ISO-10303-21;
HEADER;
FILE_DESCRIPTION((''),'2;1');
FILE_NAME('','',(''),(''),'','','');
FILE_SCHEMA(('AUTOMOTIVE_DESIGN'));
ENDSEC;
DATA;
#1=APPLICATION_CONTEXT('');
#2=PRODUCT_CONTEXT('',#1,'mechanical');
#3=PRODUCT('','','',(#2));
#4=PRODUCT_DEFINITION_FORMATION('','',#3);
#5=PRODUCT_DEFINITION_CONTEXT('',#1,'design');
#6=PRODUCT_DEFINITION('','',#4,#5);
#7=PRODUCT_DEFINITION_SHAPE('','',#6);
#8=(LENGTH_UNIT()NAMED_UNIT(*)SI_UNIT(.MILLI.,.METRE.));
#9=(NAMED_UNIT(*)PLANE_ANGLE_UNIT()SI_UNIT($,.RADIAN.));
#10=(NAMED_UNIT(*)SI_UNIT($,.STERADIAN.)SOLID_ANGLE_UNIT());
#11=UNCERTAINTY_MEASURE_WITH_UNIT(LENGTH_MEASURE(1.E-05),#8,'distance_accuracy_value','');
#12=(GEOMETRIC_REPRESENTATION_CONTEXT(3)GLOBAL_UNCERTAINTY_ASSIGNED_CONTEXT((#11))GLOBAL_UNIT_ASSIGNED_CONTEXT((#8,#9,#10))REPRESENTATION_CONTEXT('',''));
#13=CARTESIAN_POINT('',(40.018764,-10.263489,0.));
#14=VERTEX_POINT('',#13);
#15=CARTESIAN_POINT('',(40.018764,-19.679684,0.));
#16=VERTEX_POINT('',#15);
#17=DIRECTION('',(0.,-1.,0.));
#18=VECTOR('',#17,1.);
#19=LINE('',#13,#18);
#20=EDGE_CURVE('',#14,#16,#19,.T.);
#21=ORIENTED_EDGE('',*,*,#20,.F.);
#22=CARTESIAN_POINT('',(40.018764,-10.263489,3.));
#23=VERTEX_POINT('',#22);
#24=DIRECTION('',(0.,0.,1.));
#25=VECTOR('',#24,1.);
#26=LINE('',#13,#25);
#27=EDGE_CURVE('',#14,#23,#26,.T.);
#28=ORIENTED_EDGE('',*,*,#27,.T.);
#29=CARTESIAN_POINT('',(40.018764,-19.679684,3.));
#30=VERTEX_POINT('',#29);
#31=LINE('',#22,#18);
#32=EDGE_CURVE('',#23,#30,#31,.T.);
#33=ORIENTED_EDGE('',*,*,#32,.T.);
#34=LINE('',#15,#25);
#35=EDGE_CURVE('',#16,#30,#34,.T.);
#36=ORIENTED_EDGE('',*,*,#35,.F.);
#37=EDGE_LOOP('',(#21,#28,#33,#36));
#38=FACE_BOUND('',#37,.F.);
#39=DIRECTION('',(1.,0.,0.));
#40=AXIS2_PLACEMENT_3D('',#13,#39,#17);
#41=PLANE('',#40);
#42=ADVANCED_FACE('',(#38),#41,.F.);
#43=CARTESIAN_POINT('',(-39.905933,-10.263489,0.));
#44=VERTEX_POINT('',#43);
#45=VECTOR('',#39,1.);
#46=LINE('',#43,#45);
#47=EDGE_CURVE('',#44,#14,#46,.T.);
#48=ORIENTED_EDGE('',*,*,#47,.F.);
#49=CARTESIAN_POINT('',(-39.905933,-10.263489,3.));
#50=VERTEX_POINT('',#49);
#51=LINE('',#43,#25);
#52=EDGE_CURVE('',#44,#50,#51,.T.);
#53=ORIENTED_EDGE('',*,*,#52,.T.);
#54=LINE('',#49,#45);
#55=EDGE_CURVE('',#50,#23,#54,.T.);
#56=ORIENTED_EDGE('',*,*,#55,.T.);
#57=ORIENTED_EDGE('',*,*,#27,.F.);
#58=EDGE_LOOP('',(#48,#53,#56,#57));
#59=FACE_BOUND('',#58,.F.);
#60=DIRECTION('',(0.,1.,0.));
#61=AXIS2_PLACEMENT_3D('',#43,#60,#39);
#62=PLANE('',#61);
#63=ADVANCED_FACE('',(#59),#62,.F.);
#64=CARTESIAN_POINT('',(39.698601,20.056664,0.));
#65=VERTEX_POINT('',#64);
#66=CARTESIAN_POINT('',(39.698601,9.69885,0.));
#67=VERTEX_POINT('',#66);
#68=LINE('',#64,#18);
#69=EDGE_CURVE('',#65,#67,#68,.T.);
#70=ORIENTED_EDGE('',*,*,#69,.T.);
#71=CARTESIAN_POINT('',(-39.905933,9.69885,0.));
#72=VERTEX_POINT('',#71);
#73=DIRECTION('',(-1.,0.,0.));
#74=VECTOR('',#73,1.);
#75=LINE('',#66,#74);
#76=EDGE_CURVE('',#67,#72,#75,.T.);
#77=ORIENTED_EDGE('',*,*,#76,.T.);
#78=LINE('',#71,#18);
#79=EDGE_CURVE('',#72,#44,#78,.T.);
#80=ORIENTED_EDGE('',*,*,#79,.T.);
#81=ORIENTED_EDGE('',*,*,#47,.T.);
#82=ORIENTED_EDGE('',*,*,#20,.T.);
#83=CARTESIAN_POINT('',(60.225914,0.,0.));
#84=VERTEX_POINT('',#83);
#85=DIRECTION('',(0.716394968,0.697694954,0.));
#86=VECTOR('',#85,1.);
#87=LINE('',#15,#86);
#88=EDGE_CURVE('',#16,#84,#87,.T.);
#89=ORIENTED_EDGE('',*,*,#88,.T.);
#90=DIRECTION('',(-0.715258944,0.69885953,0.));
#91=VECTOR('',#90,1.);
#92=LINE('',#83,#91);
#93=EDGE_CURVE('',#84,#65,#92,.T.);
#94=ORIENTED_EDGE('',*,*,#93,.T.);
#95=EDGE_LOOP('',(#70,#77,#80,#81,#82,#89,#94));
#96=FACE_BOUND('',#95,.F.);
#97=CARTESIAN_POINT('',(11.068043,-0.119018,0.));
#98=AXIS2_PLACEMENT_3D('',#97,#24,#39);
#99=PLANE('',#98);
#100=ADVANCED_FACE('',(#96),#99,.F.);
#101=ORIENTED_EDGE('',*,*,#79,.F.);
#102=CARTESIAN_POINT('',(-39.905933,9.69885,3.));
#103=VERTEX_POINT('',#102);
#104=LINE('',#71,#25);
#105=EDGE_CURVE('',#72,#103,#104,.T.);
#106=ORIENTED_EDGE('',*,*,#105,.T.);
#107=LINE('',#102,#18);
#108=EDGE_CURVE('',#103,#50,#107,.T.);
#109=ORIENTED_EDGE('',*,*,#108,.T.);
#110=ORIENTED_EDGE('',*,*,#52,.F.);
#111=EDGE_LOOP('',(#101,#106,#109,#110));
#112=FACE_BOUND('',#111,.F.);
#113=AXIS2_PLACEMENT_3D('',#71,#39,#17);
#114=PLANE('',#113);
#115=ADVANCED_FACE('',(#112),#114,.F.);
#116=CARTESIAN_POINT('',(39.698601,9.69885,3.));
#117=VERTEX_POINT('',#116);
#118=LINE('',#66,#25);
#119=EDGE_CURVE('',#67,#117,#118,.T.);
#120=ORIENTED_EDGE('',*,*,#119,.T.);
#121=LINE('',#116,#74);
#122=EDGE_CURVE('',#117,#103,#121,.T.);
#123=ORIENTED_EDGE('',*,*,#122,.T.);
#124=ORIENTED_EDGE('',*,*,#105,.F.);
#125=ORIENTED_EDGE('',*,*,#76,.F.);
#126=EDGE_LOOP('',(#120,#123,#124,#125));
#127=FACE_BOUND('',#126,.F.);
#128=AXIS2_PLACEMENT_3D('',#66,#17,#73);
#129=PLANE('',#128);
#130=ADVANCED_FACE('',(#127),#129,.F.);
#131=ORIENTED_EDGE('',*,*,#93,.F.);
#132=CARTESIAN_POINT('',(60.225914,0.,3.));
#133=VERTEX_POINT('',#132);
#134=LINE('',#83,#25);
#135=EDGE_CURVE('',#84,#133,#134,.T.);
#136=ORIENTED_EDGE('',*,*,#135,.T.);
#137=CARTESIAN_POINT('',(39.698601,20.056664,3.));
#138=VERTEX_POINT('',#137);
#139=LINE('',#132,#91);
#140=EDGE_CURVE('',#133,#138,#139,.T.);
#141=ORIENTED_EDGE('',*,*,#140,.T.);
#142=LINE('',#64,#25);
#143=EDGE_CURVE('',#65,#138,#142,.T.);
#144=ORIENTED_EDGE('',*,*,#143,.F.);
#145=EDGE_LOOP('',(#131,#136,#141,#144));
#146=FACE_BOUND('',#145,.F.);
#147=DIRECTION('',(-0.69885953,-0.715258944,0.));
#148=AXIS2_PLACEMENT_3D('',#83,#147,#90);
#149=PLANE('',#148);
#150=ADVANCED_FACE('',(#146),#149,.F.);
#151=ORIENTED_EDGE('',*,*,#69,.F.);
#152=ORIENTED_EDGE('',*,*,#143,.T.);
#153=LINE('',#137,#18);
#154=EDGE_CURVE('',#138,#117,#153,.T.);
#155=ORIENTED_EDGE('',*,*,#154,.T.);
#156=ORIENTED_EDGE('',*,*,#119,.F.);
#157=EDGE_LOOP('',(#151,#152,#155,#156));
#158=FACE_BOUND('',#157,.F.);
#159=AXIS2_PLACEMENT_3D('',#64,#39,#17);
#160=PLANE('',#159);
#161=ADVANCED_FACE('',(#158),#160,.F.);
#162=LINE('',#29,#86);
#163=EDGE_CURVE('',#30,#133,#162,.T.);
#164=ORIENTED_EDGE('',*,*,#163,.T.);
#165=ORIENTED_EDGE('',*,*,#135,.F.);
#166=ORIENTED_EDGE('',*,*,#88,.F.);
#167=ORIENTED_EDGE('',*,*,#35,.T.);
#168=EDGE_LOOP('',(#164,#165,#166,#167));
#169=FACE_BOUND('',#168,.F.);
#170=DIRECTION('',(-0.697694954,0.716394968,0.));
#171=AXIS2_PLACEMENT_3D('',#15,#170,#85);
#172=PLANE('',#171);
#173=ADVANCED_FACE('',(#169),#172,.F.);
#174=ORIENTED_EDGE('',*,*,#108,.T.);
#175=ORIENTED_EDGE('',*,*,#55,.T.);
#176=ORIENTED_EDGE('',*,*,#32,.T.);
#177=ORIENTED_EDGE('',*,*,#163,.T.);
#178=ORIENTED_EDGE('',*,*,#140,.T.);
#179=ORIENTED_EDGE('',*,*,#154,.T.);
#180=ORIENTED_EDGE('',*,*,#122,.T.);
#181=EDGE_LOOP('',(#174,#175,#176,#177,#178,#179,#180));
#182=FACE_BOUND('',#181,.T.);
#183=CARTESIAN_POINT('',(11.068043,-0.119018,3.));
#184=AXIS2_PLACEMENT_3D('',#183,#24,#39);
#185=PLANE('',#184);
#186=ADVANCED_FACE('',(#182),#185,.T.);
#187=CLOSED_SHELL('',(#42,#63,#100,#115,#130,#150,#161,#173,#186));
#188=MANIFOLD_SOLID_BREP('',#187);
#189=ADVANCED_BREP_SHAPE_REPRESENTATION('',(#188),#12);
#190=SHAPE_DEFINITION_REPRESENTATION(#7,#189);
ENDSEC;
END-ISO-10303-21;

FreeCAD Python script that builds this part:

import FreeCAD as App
import Part
import Sketcher

V = App.Vector
Q = App.Units.Quantity


def add_polygon(sketch, points):
    """Adds a closed chain of lines whose ends are joined by coincident constraints."""
    first, n = sketch.GeometryCount, len(points)
    for a, b in zip(points, points[1:] + points[:1]):
        sketch.addGeometry(Part.LineSegment(App.Vector(*a, 0), App.Vector(*b, 0)), False)
    for i in range(n):
        sketch.addConstraint(Sketcher.Constraint("Coincident", first + i, 2, first + (i + 1) % n, 1))

doc = App.newDocument("Part")
body = doc.addObject("PartDesign::Body", "Body")

sketch1 = doc.addObject("Sketcher::SketchObject", "Sketch")
body.addObject(sketch1)
sketch1.AttachmentSupport = (doc.XY_Plane, [""])
sketch1.MapMode = "FlatFace"
add_polygon(sketch1, [(-39.905933, -10.263489), (40.018764, -10.263489), (40.018764, -19.679684), (60.225914, 0), (39.698601, 20.056664), (39.698601, 9.69885), (-39.905933, 9.69885)])
sketch1.addConstraint(Sketcher.Constraint("Horizontal", 0))
sketch1.addConstraint(Sketcher.Constraint("Vertical", 1))
sketch1.addConstraint(Sketcher.Constraint("Vertical", 4))
sketch1.addConstraint(Sketcher.Constraint("Horizontal", 5))
sketch1.addConstraint(Sketcher.Constraint("Vertical", 6))
sketch1.addConstraint(Sketcher.Constraint("PointOnObject", 2, 2, -1))
sketch1.addConstraint(Sketcher.Constraint("DistanceY", 6, 2, 6, 1, Q("19.962339 mm")))
sketch1.addConstraint(Sketcher.Constraint("DistanceX", -1, 1, 3, 2, Q("39.698601 mm")))
sketch1.addConstraint(Sketcher.Constraint("DistanceX", 0, 1, 0, 2, Q("79.924697 mm")))
sketch1.addConstraint(Sketcher.Constraint("DistanceX", 5, 2, 5, 1, Q("79.604534 mm")))
sketch1.addConstraint(Sketcher.Constraint("DistanceY", 1, 2, 1, 1, Q("9.416195 mm")))
sketch1.addConstraint(Sketcher.Constraint("DistanceY", 4, 2, 4, 1, Q("10.357814 mm")))
sketch1.addConstraint(Sketcher.Constraint("DistanceY", 0, 2, -1, 1, Q("10.263489 mm")))
sketch1.addConstraint(Sketcher.Constraint("DistanceX", 0, 2, 2, 2, Q("20.20715 mm")))
pad1 = doc.addObject("PartDesign::Pad", "Pad")
body.addObject(pad1)
pad1.Profile = sketch1
pad1.Length = 3

doc.recompute()
